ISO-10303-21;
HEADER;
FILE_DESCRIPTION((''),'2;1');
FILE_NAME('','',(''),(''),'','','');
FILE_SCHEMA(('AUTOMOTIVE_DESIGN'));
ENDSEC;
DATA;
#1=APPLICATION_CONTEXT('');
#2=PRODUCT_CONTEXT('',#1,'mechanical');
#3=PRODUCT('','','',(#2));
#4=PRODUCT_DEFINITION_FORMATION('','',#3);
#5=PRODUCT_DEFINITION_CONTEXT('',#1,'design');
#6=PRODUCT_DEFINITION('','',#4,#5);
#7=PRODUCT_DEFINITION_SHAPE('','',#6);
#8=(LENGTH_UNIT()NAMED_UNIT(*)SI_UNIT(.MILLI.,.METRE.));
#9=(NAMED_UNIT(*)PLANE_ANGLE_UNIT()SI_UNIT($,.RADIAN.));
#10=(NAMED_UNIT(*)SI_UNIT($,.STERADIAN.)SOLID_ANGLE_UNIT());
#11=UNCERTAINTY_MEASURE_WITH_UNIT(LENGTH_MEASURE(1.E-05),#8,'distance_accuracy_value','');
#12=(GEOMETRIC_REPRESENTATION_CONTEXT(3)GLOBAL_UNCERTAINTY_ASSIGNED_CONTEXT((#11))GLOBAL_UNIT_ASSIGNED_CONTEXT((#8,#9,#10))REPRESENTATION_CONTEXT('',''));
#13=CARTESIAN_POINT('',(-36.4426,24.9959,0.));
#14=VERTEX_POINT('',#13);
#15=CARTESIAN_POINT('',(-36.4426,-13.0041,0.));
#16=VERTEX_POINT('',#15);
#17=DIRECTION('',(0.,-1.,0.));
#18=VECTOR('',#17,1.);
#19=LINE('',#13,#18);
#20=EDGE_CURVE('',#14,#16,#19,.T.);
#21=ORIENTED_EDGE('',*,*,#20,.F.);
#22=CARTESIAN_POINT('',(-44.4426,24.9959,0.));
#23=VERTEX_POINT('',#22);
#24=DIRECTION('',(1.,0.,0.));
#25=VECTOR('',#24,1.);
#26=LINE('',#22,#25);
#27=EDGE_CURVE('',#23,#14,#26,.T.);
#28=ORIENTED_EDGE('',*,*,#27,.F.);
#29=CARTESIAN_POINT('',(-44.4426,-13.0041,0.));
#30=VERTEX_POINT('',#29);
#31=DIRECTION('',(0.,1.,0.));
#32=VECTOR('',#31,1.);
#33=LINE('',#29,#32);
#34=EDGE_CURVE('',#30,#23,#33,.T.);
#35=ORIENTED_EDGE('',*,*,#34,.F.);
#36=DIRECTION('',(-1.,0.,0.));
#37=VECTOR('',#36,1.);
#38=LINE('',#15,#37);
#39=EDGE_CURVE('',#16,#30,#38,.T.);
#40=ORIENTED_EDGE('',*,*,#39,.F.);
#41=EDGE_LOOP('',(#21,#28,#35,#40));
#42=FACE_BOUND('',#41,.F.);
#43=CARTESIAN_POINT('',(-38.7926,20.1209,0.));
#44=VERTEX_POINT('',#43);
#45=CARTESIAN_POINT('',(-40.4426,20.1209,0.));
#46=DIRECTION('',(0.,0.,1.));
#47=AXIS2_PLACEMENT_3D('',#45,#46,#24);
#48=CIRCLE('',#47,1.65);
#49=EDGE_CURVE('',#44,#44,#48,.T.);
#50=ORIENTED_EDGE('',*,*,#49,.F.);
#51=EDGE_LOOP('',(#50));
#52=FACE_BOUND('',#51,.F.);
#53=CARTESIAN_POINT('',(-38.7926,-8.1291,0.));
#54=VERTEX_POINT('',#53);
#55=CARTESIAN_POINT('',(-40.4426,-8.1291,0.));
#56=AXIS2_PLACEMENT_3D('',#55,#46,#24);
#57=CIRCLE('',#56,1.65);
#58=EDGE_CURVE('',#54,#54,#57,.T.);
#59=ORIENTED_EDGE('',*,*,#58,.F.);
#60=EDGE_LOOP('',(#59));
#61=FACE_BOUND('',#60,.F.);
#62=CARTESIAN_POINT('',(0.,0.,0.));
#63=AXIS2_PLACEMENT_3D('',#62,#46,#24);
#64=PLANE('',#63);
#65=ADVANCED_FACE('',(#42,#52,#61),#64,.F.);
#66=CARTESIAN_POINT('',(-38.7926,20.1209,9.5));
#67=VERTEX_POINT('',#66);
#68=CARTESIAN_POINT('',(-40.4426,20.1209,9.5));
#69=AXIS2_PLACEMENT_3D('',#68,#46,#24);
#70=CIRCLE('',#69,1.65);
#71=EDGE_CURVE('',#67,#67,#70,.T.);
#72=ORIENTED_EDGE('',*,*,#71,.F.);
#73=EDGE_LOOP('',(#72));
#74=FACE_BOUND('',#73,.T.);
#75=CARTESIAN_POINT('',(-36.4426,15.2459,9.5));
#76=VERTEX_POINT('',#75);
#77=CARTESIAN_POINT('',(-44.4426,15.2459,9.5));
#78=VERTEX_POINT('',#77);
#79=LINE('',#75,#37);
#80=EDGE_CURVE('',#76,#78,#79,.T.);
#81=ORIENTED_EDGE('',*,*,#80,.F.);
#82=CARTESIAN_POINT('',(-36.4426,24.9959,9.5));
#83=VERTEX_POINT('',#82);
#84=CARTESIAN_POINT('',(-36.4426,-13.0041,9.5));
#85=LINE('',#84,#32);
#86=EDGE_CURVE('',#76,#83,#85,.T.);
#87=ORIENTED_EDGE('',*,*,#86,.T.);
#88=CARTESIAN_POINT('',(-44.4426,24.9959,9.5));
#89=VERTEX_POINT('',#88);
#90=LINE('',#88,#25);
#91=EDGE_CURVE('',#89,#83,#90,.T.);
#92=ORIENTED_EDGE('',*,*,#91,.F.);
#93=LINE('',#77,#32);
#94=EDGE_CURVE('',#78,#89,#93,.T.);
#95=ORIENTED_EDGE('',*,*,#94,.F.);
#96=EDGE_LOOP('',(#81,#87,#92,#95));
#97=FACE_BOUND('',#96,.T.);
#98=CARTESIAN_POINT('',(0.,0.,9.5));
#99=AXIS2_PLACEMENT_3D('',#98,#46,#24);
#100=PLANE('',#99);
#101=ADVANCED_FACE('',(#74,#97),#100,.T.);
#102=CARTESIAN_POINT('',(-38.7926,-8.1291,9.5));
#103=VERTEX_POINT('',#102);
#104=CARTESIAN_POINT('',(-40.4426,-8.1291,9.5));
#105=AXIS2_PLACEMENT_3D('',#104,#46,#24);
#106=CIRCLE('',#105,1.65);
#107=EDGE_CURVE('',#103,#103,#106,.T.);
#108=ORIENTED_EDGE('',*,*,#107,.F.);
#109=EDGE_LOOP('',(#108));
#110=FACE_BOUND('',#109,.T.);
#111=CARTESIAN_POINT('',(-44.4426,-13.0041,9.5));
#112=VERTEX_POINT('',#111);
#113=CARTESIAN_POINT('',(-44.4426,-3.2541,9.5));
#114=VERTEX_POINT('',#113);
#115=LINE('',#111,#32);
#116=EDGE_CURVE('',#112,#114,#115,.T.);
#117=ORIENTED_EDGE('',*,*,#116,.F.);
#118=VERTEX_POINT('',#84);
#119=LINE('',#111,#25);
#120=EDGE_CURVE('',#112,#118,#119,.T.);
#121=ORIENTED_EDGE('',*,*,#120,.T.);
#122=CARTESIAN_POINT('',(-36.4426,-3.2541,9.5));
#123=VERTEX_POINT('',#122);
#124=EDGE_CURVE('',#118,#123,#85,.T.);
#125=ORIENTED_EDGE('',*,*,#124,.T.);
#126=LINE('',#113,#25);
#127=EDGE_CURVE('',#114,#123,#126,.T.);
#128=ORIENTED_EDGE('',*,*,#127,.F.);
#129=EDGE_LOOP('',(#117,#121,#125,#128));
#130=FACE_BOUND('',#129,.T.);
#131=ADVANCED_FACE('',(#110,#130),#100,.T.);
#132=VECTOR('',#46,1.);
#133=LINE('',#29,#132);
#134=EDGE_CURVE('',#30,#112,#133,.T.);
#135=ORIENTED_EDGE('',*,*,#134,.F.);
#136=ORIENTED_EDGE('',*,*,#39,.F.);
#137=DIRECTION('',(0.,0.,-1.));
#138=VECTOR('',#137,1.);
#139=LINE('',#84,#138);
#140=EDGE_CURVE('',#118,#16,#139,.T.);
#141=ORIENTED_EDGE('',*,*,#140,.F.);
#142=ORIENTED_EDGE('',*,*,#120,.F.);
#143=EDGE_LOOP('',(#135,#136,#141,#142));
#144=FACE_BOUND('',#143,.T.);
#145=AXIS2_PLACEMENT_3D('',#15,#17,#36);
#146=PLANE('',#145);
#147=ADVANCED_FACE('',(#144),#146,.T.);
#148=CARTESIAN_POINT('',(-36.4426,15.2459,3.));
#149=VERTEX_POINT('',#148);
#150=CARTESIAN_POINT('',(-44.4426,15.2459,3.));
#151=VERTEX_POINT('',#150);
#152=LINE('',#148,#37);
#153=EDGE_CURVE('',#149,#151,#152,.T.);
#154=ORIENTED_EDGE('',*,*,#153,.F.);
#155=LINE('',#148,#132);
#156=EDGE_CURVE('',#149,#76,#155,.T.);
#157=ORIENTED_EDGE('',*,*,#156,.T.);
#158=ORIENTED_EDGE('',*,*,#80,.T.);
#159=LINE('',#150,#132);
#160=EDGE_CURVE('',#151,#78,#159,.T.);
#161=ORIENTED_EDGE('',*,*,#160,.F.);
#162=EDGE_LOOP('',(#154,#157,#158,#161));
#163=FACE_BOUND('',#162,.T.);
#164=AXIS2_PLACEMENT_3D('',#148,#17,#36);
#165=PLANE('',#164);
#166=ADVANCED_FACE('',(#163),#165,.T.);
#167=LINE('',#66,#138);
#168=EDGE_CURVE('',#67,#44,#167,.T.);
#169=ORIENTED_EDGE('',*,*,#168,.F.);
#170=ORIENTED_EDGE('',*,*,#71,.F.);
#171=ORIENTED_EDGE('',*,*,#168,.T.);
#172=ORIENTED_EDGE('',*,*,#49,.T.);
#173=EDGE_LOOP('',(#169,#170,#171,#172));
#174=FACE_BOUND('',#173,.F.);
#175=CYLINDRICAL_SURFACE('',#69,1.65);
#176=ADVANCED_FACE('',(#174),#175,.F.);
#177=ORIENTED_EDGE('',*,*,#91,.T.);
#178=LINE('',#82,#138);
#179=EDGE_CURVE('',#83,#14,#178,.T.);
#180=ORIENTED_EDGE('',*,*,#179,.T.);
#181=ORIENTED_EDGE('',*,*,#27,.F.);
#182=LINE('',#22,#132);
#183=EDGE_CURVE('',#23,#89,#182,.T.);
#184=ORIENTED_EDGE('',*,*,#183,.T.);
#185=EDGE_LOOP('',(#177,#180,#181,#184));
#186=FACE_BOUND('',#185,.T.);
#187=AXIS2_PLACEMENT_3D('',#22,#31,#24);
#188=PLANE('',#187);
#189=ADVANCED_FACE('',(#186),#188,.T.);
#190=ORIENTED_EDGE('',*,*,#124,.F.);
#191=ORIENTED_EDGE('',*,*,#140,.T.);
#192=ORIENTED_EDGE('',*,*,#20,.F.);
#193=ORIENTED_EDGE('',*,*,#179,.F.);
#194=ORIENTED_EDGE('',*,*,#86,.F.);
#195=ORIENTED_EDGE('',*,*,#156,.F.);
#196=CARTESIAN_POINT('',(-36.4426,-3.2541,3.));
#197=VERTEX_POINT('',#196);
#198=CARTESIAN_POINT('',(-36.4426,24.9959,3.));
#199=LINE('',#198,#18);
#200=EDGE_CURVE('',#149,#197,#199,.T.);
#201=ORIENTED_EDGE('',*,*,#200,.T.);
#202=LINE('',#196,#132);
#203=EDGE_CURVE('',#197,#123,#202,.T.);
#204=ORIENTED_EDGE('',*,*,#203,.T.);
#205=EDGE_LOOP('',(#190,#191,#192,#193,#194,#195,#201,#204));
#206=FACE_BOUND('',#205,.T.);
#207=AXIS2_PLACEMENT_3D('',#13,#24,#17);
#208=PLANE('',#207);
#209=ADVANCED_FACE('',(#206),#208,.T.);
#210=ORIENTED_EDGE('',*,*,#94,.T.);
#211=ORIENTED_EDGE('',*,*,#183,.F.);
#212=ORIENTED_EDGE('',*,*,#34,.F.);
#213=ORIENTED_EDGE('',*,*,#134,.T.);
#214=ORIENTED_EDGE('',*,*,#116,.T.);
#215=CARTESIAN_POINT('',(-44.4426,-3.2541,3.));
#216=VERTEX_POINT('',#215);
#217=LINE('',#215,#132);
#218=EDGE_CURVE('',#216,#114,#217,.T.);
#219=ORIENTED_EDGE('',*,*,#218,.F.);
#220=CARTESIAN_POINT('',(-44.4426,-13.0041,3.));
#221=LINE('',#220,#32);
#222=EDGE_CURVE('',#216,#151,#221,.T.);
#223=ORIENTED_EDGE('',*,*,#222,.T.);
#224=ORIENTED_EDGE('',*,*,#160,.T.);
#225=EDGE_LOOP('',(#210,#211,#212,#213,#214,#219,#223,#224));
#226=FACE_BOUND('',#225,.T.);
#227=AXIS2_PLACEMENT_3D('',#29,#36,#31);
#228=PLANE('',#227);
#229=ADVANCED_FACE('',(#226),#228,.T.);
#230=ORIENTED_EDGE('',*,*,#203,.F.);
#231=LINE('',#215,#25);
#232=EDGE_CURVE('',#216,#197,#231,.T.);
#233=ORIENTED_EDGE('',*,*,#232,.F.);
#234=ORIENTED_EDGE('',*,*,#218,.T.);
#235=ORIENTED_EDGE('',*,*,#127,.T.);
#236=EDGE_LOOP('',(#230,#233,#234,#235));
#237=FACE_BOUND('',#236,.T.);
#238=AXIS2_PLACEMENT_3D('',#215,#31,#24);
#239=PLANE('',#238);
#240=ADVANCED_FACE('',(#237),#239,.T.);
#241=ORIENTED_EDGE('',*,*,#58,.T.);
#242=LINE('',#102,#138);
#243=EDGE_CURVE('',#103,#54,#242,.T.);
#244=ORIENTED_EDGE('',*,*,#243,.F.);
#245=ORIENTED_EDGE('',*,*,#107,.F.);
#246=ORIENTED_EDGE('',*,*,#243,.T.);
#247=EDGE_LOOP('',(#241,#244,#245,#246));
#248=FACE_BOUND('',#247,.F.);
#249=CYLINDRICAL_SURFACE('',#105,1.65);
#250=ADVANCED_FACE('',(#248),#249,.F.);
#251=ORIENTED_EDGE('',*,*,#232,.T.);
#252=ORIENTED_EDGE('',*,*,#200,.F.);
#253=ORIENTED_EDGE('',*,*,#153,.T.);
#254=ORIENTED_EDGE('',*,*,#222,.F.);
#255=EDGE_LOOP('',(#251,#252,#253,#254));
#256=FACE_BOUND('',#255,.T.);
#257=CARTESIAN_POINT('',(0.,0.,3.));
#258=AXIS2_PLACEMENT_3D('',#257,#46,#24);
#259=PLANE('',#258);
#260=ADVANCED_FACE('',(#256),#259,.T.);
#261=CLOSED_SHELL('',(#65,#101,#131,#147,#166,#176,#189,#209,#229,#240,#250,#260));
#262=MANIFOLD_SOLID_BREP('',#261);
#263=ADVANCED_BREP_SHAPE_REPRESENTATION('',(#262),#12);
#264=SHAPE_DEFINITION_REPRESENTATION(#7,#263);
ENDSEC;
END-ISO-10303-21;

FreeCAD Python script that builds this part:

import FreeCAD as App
import Part
import Sketcher
from FreeCAD import Vector
Q = App.Units.Quantity


def add_polygon(sketch, points):
    """Adds a closed chain of lines whose ends are joined by coincident constraints."""
    first, n = sketch.GeometryCount, len(points)
    for a, b in zip(points, points[1:] + points[:1]):
        sketch.addGeometry(Part.LineSegment(App.Vector(*a, 0), App.Vector(*b, 0)), False)
    for i in range(n):
        sketch.addConstraint(Sketcher.Constraint("Coincident", first + i, 2, first + (i + 1) % n, 1))

doc = App.newDocument("Part")
body = doc.addObject("PartDesign::Body", "Body")

# Sketch on XY plane
sketch1 = body.newObject("Sketcher::SketchObject", "Sketch")
sketch1.AttachmentSupport = (doc.getObject("XY_Plane"), [""])
sketch1.MapMode = "FlatFace"
add_polygon(sketch1, [(-36.4426, 24.9959), (-44.4426, 24.9959), (-44.4426, -13.0041), (-36.4426, -13.0041)])  # lines 0-3
sketch1.addConstraint([
    Sketcher.Constraint("Horizontal", 0),
    Sketcher.Constraint("Vertical", 1),
    Sketcher.Constraint("Horizontal", 2),
    Sketcher.Constraint("Vertical", 3),
    Sketcher.Constraint("DistanceX", 0, 2, 0, 1, Q("8 mm")),
    Sketcher.Constraint("DistanceY", 1, 2, 1, 1, Q("38 mm")),
    Sketcher.Constraint("DistanceY", -1, 1, 0, 2, Q("24.996 mm")),
    Sketcher.Constraint("DistanceX", 0, 2, -1, 1, Q("44.4426 mm")),
])
pad1 = body.newObject("PartDesign::Pad", "Pad")
pad1.Profile = sketch1
pad1.Length = 3

# Sketch on XY plane
sketch2 = body.newObject("Sketcher::SketchObject", "Sketch001")
sketch2.AttachmentSupport = (doc.getObject("XY_Plane"), [""])
sketch2.MapMode = "FlatFace"
sketch2.AttachmentOffset = App.Placement(Vector(0, 0, 3), App.Rotation())
add_polygon(sketch2, [(-44.4426, -3.2541), (-44.4426, -13.0041), (-36.4426, -13.0041), (-36.4426, -3.2541)])  # lines 0-3
add_polygon(sketch2, [(-44.4426, 15.2459), (-36.4426, 15.2459), (-36.4426, 24.9959), (-44.4426, 24.9959)])  # lines 4-7
sketch2.addConstraint([
    Sketcher.Constraint("Vertical", 0),
    Sketcher.Constraint("Horizontal", 1),
    Sketcher.Constraint("Vertical", 2),
    Sketcher.Constraint("Horizontal", 3),
    Sketcher.Constraint("Horizontal", 4),
    Sketcher.Constraint("Vertical", 5),
    Sketcher.Constraint("Horizontal", 6),
    Sketcher.Constraint("Vertical", 7),
    Sketcher.Constraint("Vertical", 2, 2, 4, 2),
    Sketcher.Constraint("Vertical", 3, 2, 6, 2),
    Sketcher.Constraint("Equal", 2, 5),
    Sketcher.Constraint("DistanceY", 0, 2, 0, 1, Q("9.75 mm")),
    Sketcher.Constraint("DistanceX", 1, 1, 1, 2, Q("8 mm")),
    Sketcher.Constraint("DistanceY", 1, 2, 5, 2, Q("38 mm")),
    Sketcher.Constraint("DistanceY", 0, 2, -1, 1, Q("13.004 mm")),
    Sketcher.Constraint("DistanceX", 0, 2, -1, 1, Q("44.4426 mm")),
])
pad2 = body.newObject("PartDesign::Pad", "Pad001")
pad2.Profile = sketch2
pad2.Length = 6.5

# Sketch on XY plane
sketch3 = body.newObject("Sketcher::SketchObject", "Sketch002")
sketch3.AttachmentSupport = (doc.getObject("XY_Plane"), [""])
sketch3.MapMode = "FlatFace"
sketch3.AttachmentOffset = App.Placement(Vector(0, 0, 9.5), App.Rotation())
sketch3.addGeometry([
    Part.Circle(Vector(-40.4426, 20.1209, 0), Vector(0, 0, 1), 1.65),
    Part.Circle(Vector(-40.4426, -8.1291, 0), Vector(0, 0, 1), 1.65),
], False)
sketch3.addConstraint([
    Sketcher.Constraint("Equal", 0, 1),
    Sketcher.Constraint("Vertical", 0, 3, 1, 3),
    Sketcher.Constraint("Diameter", 0, Q("3.3 mm")),
    Sketcher.Constraint("DistanceY", 1, 3, 0, 3, Q("28.25 mm")),
    Sketcher.Constraint("DistanceY", -1, 1, 0, 3, Q("20.121 mm")),
    Sketcher.Constraint("DistanceX", 0, 3, -1, 1, Q("40.4426 mm")),
])
pocket1 = body.newObject("PartDesign::Pocket", "Pocket")
pocket1.Profile = sketch3
pocket1.Type = "ThroughAll"

doc.recompute()
